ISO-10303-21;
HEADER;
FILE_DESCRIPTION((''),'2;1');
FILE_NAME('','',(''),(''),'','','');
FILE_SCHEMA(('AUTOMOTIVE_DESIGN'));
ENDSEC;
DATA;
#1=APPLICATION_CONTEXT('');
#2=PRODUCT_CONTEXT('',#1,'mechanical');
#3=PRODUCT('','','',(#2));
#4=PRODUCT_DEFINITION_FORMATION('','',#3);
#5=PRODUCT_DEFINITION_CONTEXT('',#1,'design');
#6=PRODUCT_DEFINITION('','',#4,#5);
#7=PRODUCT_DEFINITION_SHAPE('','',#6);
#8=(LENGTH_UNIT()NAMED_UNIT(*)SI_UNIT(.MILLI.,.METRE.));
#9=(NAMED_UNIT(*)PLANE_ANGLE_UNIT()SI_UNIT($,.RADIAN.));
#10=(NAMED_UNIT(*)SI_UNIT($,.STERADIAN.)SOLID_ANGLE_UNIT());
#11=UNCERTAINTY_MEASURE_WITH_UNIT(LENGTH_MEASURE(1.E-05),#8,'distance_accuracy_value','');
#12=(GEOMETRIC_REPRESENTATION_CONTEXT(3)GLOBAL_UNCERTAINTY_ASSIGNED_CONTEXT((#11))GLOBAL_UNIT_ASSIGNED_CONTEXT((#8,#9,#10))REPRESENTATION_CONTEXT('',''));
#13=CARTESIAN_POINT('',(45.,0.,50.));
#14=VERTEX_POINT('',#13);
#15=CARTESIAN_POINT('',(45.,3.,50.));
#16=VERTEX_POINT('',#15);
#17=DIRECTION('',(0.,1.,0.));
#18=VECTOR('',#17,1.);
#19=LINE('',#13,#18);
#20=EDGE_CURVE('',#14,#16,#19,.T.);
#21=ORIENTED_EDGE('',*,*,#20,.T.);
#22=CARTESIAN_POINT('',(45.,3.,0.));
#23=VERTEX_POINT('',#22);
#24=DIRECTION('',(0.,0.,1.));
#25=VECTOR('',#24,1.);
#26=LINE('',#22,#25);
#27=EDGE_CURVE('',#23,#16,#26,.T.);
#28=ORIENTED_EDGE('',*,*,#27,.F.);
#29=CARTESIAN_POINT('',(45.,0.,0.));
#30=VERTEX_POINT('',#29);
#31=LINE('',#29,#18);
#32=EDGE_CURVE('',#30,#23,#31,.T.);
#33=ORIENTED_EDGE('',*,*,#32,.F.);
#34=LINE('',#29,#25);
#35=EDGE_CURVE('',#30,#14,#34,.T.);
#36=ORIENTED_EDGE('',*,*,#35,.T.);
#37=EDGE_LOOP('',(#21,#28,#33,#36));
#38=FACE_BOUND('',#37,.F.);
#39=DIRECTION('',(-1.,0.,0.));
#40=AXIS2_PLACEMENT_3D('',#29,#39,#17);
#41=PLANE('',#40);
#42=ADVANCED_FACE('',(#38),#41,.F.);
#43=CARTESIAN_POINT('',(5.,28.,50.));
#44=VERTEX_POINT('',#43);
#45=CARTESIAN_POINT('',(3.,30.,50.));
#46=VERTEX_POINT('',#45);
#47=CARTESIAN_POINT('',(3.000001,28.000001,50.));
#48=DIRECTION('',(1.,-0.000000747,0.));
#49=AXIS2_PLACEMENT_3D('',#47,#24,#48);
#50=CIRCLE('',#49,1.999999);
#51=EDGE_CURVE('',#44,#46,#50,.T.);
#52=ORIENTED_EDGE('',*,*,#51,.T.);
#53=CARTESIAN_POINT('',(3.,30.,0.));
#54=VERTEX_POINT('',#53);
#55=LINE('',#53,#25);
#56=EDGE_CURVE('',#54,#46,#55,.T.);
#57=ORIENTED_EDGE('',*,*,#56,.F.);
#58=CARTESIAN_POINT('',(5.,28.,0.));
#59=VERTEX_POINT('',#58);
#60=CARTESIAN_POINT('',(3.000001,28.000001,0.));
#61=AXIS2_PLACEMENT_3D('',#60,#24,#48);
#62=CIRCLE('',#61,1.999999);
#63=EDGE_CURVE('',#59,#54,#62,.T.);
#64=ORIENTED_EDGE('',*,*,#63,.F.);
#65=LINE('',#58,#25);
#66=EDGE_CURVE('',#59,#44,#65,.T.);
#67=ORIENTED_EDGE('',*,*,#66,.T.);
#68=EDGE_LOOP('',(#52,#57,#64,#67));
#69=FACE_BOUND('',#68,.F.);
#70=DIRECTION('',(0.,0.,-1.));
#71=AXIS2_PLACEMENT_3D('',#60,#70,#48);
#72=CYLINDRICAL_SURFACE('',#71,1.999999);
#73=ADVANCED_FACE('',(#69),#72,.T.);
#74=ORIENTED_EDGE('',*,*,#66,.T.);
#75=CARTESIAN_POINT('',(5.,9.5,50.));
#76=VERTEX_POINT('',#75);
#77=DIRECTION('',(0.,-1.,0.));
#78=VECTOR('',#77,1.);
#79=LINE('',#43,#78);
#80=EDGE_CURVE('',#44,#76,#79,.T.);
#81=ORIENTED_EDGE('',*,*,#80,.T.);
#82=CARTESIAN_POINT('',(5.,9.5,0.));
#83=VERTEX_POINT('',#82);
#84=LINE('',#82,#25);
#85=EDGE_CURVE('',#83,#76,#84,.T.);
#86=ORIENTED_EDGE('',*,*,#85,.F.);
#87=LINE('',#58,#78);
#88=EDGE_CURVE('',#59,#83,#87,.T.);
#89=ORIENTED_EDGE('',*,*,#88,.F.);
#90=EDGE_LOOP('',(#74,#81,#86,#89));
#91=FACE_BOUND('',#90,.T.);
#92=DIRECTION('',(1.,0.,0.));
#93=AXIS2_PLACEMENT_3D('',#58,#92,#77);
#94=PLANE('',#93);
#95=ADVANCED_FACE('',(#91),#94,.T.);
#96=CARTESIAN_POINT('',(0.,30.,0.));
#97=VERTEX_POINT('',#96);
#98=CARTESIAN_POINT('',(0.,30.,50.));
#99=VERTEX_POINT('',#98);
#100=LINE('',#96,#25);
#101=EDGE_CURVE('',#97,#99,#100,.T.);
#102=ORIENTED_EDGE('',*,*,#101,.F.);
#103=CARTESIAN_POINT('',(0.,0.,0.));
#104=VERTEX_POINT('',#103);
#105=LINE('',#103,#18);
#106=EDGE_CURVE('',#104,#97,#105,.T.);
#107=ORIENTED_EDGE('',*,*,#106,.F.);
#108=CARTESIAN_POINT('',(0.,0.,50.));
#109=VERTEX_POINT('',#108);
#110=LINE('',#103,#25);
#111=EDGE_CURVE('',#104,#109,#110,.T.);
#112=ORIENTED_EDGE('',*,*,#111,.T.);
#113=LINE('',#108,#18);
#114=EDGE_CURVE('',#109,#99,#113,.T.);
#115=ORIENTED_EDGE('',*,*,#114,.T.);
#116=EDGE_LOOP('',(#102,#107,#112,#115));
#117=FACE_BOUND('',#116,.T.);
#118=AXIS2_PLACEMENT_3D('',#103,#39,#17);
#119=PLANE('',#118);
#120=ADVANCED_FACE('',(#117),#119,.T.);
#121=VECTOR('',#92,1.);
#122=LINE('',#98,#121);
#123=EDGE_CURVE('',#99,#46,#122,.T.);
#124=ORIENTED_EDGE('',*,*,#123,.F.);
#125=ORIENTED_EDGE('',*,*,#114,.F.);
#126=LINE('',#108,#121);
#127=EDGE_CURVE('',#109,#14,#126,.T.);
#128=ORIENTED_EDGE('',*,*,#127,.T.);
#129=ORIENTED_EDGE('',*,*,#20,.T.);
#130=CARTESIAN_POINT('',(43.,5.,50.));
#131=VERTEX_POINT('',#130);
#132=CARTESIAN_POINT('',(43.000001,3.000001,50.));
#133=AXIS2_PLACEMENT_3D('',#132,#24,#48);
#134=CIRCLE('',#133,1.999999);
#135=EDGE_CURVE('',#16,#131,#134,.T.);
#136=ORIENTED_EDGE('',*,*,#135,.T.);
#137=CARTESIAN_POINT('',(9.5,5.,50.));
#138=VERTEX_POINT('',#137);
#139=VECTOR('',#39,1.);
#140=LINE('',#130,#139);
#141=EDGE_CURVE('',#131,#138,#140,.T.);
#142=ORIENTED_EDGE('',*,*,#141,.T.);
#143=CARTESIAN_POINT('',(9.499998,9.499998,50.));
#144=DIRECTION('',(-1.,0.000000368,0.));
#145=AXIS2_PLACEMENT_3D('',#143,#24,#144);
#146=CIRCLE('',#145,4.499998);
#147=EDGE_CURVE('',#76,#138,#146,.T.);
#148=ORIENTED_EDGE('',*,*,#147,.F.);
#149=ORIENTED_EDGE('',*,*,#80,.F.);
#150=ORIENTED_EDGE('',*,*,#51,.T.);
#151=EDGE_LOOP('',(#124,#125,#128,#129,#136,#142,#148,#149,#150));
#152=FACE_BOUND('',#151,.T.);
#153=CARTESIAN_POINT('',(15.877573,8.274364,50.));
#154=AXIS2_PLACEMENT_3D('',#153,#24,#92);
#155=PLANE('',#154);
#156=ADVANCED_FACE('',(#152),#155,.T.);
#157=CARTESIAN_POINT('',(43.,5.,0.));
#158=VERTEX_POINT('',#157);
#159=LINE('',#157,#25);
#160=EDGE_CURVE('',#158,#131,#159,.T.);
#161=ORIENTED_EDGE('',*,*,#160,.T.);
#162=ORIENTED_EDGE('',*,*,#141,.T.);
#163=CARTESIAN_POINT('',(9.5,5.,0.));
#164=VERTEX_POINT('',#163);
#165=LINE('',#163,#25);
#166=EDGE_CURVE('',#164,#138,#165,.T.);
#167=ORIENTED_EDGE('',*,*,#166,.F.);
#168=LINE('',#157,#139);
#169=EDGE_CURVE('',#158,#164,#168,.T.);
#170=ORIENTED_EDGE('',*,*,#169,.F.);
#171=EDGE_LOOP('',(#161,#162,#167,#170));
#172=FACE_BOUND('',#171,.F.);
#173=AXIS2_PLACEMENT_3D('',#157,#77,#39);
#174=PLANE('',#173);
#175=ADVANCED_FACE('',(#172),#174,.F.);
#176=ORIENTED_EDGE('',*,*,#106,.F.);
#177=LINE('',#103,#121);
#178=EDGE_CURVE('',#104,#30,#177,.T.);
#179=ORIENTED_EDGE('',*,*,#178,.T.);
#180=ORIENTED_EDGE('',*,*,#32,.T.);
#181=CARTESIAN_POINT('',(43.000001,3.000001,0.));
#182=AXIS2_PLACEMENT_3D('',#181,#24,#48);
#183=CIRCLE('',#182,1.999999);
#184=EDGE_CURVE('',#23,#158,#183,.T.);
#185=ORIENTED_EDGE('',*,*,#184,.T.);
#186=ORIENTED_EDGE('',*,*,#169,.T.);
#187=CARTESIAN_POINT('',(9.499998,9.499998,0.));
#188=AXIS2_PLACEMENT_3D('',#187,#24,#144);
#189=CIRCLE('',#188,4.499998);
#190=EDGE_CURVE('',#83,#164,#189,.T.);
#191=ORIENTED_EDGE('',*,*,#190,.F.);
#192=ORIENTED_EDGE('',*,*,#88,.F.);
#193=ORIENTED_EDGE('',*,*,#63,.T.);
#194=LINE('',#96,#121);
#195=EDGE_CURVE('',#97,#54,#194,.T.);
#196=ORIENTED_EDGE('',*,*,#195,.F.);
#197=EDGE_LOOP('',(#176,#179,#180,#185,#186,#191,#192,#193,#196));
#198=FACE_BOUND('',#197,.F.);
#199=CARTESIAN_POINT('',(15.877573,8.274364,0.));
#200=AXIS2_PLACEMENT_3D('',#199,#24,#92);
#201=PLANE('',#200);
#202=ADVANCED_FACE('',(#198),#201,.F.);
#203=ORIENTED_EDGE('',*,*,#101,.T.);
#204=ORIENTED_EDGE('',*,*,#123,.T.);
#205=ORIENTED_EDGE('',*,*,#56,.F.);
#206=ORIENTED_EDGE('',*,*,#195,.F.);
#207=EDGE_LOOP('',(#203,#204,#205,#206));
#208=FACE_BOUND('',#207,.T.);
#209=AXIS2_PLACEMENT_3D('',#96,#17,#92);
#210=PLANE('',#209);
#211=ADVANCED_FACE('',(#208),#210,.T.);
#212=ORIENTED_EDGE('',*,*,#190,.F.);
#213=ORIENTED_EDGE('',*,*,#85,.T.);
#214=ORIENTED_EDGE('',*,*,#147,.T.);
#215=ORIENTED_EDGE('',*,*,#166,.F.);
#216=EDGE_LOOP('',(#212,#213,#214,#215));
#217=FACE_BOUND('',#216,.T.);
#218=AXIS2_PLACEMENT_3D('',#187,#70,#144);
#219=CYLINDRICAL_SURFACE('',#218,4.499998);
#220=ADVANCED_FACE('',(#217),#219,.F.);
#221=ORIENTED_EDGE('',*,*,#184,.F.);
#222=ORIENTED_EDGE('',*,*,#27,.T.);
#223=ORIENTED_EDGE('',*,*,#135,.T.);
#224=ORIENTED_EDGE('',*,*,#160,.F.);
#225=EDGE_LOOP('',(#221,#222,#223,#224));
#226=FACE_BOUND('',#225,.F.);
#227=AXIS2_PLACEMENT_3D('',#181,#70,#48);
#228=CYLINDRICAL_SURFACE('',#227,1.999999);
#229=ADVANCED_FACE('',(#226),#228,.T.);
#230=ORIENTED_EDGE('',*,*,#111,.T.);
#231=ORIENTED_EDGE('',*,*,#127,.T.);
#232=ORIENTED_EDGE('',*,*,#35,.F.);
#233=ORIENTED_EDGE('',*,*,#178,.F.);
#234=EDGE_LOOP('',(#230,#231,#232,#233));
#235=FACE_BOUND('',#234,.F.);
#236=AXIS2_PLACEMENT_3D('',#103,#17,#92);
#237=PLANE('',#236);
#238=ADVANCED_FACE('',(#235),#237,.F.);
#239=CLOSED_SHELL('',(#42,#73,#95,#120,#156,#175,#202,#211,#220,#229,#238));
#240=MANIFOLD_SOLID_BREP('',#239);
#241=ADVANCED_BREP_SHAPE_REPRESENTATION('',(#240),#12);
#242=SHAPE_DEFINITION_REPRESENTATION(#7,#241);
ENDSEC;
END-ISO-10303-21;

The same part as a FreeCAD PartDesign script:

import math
import FreeCAD as App
import Part
import Sketcher

V = App.Vector
Q = App.Units.Quantity

doc = App.newDocument("Part")
body = doc.addObject("PartDesign::Body", "Body")

# Sketch on XY plane
sketch1 = body.newObject("Sketcher::SketchObject", "Sketch")
sketch1.AttachmentSupport = (doc.getObject("XY_Plane"), [""])
sketch1.MapMode = "FlatFace"
sketch1.addGeometry([
    Part.LineSegment(V(0, 0, 0), V(45, 0, 0)),  # 0
    Part.LineSegment(V(45, 0, 0), V(45, 3, 0)),  # 1
    Part.ArcOfCircle(Part.Circle(V(43, 3, 0), V(0, 0, 1), 2), math.radians(0), math.radians(90)),  # 2
    Part.LineSegment(V(43, 5, 0), V(9.5, 5, 0)),  # 3
    Part.ArcOfCircle(Part.Circle(V(9.5, 9.5, 0), V(0, 0, 1), 4.5), math.radians(180), math.radians(270)),  # 4
    Part.LineSegment(V(5, 9.5, 0), V(5, 28, 0)),  # 5
    Part.ArcOfCircle(Part.Circle(V(3, 28, 0), V(0, 0, 1), 2), math.radians(0), math.radians(90)),  # 6
    Part.LineSegment(V(3, 30, 0), V(0, 30, 0)),  # 7
    Part.LineSegment(V(0, 30, 0), V(0, 0, 0)),  # 8
], False)
sketch1.addConstraint([
    Sketcher.Constraint("Coincident", 0, 2, 1, 1),
    Sketcher.Constraint("Tangent", 1, 2, 2, 1),
    Sketcher.Constraint("Tangent", 2, 2, 3, 1),
    Sketcher.Constraint("Tangent", 3, 2, 4, 2),
    Sketcher.Constraint("Tangent", 4, 1, 5, 1),
    Sketcher.Constraint("Tangent", 5, 2, 6, 1),
    Sketcher.Constraint("Tangent", 6, 2, 7, 1),
    Sketcher.Constraint("Coincident", 7, 2, 8, 1),
    Sketcher.Constraint("Coincident", 8, 2, 0, 1),
    Sketcher.Constraint("Horizontal", 0),
    Sketcher.Constraint("Vertical", 1),
    Sketcher.Constraint("Horizontal", 3),
    Sketcher.Constraint("Vertical", 5),
    Sketcher.Constraint("Horizontal", 7),
    Sketcher.Constraint("Vertical", 8),
    Sketcher.Constraint("Coincident", 8, 2, -1, 1),
    Sketcher.Constraint("Equal", 2, 6),
    Sketcher.Constraint("Equal", 7, 1),
    Sketcher.Constraint("Radius", 2, Q("1.999999 mm")),
    Sketcher.Constraint("Radius", 4, Q("4.499998 mm")),
    Sketcher.Constraint("DistanceX", 0, 1, 0, 2, Q("45 mm")),
    Sketcher.Constraint("DistanceX", 7, 2, 7, 1, Q("3 mm")),
    Sketcher.Constraint("DistanceY", 8, 2, 8, 1, Q("30 mm")),
])
pad1 = body.newObject("PartDesign::Pad", "Pad")
pad1.Profile = sketch1
pad1.Length = 50

doc.recompute()
